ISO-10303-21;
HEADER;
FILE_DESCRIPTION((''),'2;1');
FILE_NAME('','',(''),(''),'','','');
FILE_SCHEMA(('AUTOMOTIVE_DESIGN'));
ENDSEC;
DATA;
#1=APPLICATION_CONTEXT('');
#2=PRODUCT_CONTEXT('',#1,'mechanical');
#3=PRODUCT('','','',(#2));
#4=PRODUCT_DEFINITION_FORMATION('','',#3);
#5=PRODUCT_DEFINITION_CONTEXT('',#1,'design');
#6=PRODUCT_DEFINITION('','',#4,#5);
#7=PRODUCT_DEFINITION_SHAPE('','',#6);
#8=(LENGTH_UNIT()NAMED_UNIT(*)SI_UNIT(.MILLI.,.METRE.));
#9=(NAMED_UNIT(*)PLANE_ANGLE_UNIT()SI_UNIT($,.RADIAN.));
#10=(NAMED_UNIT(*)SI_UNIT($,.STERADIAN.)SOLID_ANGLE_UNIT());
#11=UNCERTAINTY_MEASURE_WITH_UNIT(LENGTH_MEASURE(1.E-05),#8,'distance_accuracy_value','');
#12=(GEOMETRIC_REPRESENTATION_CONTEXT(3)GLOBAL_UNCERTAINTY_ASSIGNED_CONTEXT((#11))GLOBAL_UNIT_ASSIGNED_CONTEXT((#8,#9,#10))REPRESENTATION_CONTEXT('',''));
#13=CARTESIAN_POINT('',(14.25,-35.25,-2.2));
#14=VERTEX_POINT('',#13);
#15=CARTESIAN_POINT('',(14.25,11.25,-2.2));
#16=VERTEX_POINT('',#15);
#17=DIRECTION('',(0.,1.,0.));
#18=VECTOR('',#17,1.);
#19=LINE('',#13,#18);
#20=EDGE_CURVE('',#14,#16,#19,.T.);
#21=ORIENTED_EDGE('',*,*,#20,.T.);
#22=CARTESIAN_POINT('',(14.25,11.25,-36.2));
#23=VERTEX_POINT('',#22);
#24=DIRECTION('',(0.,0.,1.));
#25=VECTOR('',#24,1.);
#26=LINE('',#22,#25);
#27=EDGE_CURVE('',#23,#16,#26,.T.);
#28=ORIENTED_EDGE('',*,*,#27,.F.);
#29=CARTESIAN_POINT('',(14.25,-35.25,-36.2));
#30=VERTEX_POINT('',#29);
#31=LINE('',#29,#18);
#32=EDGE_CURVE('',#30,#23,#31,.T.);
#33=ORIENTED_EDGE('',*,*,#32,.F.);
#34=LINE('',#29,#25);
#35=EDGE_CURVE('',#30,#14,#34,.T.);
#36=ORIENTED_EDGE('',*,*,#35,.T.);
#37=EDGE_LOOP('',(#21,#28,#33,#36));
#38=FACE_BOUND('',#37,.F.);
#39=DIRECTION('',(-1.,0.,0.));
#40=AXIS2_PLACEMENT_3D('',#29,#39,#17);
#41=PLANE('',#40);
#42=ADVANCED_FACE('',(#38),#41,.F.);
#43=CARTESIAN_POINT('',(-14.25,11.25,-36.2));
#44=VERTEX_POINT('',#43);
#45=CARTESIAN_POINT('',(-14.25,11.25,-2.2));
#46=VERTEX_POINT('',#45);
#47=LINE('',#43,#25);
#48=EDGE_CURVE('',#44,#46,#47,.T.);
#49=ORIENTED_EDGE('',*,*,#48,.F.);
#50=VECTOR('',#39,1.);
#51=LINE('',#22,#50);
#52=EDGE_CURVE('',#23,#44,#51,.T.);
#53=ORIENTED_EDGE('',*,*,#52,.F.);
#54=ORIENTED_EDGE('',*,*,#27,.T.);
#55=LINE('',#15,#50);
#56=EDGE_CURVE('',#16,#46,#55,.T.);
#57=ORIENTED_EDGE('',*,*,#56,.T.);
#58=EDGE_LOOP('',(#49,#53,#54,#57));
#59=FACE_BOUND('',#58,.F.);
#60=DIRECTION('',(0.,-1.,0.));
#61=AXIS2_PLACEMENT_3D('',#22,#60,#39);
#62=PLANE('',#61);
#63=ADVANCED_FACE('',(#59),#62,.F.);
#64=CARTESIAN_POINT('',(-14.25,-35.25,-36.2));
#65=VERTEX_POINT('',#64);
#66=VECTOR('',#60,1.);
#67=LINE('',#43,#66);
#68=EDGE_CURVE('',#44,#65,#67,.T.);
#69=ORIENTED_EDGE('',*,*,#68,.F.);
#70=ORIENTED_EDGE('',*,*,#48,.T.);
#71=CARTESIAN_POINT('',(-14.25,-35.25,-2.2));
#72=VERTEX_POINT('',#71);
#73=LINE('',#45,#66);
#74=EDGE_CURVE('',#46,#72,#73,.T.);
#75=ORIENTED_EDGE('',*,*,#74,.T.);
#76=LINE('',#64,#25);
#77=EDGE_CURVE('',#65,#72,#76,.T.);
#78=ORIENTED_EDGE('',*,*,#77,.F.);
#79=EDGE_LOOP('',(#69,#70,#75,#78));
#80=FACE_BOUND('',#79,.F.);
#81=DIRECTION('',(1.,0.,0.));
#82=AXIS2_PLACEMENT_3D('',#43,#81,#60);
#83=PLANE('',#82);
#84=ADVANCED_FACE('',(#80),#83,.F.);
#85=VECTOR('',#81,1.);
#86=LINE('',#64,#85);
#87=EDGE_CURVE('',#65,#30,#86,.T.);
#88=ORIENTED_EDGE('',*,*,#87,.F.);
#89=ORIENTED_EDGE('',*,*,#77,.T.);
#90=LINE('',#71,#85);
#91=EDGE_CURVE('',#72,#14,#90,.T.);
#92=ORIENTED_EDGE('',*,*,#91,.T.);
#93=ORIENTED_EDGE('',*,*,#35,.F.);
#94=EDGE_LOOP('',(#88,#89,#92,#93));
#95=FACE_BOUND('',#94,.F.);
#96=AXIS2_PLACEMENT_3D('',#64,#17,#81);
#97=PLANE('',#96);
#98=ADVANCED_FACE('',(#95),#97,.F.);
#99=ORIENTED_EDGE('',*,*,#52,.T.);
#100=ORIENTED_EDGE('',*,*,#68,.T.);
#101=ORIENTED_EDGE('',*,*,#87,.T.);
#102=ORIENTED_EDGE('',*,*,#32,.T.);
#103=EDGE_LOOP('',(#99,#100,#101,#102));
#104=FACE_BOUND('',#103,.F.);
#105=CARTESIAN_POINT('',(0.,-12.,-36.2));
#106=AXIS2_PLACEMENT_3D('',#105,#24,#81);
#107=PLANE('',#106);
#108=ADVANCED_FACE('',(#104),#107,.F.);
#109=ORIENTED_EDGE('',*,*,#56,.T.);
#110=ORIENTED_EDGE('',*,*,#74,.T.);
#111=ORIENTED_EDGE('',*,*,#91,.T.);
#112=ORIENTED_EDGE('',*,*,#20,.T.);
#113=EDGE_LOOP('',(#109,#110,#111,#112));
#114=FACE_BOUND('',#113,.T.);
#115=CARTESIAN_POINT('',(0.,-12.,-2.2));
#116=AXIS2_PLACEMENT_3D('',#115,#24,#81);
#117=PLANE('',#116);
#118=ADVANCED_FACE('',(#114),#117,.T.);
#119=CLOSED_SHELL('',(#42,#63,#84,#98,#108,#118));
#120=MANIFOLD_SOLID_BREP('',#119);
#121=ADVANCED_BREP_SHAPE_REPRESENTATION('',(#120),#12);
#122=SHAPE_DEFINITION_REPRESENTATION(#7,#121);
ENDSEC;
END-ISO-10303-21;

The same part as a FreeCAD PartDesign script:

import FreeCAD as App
import Part
import Sketcher
from FreeCAD import Vector


def add_polygon(sketch, points):
    """Adds a closed chain of lines whose ends are joined by coincident constraints."""
    first, n = sketch.GeometryCount, len(points)
    for a, b in zip(points, points[1:] + points[:1]):
        sketch.addGeometry(Part.LineSegment(App.Vector(*a, 0), App.Vector(*b, 0)), False)
    for i in range(n):
        sketch.addConstraint(Sketcher.Constraint("Coincident", first + i, 2, first + (i + 1) % n, 1))

doc = App.newDocument("Part")
body = doc.addObject("PartDesign::Body", "Body")

sketch1 = body.newObject("Sketcher::SketchObject", "Sketch")
sketch1.AttachmentSupport = (doc.getObject("XY_Plane"), [""])
sketch1.MapMode = "FlatFace"
sketch1.AttachmentOffset = App.Placement(Vector(0, 0, -36.2), App.Rotation())
add_polygon(sketch1, [(-14, 11), (-14, -35), (14, -35), (14, 11)])
sketch1.addConstraint([
    Sketcher.Constraint("Vertical", 0),
    Sketcher.Constraint("Horizontal", 1),
    Sketcher.Constraint("Vertical", 2),
    Sketcher.Constraint("Horizontal", 3),
    Sketcher.Constraint("DistanceX", 1, 1, 1, 2, 28.5),
    Sketcher.Constraint("DistanceY", 0, 2, 0, 1, 46.5),
    Sketcher.Constraint("DistanceX", 0, 2, -1, 1, 14.25),
    Sketcher.Constraint("DistanceY", 0, 2, -1, 1, 35.25),
])
pad1 = body.newObject("PartDesign::Pad", "Pad")
pad1.Profile = sketch1
pad1.Length = 34

doc.recompute()
